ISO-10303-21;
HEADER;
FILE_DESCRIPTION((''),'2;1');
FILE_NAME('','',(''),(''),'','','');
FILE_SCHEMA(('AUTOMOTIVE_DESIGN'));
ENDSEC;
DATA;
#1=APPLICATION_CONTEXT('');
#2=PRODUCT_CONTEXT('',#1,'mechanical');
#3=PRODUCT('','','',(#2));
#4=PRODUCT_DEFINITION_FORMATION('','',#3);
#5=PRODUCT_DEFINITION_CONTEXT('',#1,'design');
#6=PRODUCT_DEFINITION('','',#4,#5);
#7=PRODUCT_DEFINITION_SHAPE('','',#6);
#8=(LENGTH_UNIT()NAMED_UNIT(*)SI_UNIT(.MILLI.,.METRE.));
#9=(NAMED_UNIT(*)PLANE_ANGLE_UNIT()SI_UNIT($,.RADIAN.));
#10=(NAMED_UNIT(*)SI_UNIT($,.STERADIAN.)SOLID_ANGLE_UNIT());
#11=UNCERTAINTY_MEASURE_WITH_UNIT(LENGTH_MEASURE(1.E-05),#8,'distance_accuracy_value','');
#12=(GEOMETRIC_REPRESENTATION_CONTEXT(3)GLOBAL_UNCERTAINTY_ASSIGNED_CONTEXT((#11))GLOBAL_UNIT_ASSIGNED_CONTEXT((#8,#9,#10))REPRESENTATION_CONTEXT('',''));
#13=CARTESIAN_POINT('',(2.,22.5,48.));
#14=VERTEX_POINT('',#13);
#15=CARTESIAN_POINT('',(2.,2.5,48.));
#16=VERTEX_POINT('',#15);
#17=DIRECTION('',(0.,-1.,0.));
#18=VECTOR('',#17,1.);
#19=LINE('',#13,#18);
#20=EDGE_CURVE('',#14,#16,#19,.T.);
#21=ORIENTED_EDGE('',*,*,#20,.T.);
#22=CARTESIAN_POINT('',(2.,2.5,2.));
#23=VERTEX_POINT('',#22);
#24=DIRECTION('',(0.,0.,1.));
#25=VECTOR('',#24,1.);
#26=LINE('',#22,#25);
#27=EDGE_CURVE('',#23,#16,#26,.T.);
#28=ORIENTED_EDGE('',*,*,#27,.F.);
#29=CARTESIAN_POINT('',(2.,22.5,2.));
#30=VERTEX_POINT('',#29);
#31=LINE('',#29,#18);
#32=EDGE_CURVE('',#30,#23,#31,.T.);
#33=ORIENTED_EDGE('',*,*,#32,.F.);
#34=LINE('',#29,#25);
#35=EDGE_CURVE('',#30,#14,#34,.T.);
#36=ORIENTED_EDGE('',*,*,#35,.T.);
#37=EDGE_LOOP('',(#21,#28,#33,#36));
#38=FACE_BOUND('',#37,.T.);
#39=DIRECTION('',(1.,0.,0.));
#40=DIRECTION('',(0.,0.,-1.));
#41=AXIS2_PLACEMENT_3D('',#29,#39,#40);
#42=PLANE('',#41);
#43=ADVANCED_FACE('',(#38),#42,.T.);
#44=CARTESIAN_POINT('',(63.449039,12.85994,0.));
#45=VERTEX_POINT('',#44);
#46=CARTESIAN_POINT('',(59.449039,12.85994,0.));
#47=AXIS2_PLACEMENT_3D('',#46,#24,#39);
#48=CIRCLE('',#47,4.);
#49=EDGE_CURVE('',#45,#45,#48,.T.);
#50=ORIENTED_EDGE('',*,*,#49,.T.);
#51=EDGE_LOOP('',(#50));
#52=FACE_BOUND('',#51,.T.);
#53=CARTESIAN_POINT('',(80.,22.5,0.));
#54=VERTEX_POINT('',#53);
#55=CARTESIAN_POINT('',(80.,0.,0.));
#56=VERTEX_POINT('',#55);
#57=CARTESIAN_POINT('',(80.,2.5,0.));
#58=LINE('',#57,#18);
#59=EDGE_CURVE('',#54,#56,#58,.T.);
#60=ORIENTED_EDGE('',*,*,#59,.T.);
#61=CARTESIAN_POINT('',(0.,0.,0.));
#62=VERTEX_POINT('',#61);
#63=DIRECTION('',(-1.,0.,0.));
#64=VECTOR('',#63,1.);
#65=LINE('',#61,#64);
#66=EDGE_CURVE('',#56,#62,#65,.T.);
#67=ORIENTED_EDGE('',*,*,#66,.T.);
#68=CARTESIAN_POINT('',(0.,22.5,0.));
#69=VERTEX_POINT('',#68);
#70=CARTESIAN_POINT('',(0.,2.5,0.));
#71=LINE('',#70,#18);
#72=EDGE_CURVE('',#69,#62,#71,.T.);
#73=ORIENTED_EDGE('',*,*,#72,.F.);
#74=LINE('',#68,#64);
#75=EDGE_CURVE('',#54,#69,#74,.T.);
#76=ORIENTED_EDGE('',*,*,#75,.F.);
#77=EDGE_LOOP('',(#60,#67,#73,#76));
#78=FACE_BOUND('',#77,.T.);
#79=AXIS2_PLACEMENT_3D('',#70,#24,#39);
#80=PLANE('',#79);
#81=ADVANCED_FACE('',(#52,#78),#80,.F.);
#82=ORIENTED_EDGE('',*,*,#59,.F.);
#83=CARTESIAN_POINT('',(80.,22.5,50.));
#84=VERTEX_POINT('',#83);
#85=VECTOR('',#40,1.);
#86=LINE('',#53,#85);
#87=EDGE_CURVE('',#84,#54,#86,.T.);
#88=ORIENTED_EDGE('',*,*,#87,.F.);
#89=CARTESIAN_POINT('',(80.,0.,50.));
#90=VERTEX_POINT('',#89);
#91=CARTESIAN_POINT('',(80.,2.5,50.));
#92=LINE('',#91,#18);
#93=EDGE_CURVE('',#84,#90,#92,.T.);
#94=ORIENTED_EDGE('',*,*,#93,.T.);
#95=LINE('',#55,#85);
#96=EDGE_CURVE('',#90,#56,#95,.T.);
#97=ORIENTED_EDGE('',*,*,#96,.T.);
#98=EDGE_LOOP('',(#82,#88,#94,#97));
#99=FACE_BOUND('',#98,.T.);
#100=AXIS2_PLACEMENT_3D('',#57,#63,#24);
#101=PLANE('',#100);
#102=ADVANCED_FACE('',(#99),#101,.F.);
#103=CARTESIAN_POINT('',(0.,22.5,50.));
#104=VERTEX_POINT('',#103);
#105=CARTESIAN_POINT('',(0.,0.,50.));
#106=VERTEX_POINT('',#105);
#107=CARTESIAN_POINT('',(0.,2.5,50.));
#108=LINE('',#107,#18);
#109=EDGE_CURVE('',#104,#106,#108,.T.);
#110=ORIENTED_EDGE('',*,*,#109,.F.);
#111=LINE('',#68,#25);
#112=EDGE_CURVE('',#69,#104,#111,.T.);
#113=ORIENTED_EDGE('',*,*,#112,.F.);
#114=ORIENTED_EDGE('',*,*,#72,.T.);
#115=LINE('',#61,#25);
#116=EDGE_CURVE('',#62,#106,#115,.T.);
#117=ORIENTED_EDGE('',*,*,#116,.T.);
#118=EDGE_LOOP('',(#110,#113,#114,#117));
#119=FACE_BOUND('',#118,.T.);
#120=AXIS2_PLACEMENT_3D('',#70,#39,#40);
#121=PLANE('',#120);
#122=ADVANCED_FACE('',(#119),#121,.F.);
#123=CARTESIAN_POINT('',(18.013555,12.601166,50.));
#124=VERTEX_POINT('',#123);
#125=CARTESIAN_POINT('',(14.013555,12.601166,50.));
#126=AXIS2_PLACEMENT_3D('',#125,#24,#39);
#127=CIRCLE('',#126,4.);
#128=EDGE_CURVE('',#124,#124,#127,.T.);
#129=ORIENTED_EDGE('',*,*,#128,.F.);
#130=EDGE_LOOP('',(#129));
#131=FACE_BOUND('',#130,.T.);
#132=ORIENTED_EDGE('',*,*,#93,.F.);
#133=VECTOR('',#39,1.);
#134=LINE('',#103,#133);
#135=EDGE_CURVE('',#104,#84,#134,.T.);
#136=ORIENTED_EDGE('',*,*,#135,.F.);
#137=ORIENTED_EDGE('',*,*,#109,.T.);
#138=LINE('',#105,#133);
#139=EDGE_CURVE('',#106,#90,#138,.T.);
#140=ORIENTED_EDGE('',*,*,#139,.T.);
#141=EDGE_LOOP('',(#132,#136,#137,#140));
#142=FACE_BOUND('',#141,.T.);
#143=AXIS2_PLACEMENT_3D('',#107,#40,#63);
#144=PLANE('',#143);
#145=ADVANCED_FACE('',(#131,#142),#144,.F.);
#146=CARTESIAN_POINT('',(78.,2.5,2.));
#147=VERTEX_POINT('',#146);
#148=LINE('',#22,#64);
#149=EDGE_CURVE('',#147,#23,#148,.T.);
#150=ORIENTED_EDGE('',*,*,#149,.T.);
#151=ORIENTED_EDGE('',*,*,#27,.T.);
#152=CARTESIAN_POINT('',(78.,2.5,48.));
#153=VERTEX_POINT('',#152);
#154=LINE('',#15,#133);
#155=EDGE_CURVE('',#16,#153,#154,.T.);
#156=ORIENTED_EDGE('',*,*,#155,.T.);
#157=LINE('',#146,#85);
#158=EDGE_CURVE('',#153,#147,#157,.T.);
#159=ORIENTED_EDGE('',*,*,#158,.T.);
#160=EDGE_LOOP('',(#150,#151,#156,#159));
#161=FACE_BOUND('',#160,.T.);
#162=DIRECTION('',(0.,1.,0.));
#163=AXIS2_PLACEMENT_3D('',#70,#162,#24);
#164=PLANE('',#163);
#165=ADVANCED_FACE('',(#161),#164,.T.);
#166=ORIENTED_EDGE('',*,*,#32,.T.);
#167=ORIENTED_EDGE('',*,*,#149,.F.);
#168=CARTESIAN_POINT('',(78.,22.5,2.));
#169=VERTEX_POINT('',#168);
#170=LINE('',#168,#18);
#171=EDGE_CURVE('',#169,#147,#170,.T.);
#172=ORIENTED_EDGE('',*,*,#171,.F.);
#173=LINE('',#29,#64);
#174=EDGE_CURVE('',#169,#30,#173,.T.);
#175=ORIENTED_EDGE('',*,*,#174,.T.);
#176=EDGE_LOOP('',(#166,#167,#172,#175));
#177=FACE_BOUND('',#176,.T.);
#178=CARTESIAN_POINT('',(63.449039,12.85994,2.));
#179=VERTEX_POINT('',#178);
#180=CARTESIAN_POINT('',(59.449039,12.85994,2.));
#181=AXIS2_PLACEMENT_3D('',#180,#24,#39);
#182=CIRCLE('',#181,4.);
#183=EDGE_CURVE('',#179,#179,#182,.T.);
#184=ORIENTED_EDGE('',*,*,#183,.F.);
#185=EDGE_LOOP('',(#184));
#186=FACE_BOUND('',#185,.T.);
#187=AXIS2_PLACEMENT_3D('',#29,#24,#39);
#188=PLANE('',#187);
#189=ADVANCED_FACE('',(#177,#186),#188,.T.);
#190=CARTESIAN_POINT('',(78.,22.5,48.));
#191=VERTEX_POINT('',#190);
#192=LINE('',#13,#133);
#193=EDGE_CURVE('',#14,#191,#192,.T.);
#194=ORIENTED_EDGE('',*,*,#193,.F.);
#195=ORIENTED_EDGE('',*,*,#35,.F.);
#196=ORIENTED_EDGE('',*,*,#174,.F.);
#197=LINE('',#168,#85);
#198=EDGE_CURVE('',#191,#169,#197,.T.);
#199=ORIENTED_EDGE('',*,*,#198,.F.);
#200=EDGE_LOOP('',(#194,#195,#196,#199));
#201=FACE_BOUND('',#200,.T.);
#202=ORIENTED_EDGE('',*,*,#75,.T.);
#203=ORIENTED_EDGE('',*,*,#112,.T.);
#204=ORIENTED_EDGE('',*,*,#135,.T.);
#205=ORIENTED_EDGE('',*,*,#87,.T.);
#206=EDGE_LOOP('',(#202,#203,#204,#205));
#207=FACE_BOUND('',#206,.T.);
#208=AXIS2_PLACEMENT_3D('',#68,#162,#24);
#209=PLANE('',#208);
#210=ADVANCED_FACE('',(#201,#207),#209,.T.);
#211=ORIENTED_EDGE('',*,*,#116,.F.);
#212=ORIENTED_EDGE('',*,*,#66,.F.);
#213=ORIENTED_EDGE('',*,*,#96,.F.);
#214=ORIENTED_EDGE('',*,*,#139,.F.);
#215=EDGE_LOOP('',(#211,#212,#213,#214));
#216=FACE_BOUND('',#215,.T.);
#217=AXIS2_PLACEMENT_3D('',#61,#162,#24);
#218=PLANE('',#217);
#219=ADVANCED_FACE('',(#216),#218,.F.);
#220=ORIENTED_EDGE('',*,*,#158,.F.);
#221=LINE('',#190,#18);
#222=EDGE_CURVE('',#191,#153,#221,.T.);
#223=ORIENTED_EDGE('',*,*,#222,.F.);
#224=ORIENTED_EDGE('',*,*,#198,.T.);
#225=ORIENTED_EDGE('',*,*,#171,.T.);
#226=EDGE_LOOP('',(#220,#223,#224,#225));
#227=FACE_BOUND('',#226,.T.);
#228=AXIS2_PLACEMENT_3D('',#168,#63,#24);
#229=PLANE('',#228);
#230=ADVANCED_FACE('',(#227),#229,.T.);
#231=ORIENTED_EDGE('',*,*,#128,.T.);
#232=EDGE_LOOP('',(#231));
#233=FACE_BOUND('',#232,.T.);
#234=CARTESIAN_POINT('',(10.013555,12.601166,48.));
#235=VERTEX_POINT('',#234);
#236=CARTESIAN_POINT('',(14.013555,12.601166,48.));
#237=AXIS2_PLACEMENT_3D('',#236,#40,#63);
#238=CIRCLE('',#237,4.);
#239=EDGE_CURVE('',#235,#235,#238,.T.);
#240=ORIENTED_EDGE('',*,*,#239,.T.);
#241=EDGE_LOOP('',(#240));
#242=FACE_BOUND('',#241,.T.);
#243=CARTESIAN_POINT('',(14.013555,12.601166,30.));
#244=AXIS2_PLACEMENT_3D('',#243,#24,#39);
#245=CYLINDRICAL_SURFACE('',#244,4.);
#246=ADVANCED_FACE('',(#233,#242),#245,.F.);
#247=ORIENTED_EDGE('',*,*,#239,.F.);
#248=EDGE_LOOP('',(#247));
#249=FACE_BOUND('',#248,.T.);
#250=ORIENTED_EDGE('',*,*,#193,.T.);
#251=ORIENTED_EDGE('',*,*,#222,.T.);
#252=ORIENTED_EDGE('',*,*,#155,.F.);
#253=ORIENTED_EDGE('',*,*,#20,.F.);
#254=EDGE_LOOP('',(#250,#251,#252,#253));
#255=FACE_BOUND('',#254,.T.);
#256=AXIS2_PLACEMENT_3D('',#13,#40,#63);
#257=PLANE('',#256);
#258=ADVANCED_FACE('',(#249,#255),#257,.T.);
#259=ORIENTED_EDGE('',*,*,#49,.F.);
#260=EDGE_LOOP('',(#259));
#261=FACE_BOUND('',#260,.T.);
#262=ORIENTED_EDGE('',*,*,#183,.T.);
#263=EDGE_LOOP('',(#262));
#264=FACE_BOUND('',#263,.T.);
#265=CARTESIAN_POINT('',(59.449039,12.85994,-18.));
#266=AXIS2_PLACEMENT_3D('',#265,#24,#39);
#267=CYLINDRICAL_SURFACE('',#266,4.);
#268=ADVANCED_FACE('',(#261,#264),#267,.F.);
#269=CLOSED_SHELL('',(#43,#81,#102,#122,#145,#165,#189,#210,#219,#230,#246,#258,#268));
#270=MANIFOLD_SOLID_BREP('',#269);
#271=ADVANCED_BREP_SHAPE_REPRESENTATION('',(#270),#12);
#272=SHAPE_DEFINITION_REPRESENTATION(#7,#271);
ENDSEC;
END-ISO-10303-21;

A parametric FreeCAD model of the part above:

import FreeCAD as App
import Part
import Sketcher
from FreeCAD import Vector
Q = App.Units.Quantity


def add_polygon(sketch, points):
    """Adds a closed chain of lines whose ends are joined by coincident constraints."""
    first, n = sketch.GeometryCount, len(points)
    for a, b in zip(points, points[1:] + points[:1]):
        sketch.addGeometry(Part.LineSegment(App.Vector(*a, 0), App.Vector(*b, 0)), False)
    for i in range(n):
        sketch.addConstraint(Sketcher.Constraint("Coincident", first + i, 2, first + (i + 1) % n, 1))

doc = App.newDocument("Part")
params = doc.addObject("Spreadsheet::Sheet", "Params")
for row, (alias, value) in enumerate([
    ("sketch1_width", "80 mm"),
    ("sketch1_height", "50 mm"),
    ("pad1_length", "2.5 mm"),
    ("sketch2_width", "80 mm"),
    ("sketch2_width2", "76 mm"),
    ("sketch2_height", "50 mm"),
    ("sketch2_height2", "46 mm"),
    ("pad2_length", "20 mm"),
    ("sketch3_diameter", "8 mm"),
    ("pocket1_length", "20 mm"),
    ("sketch4_diameter", "8 mm"),
    ("pocket2_length", "20 mm"),
], start=1):
    params.set(f"A{row}", alias)
    params.set(f"B{row}", "=" + value)
    params.setAlias(f"B{row}", alias)

body = doc.addObject("PartDesign::Body", "Body")

sketch1 = body.newObject("Sketcher::SketchObject", "Sketch")
sketch1.AttachmentSupport = (doc.getObject("XZ_Plane"), [""])
sketch1.MapMode = "FlatFace"
add_polygon(sketch1, [(0, 0), (0, 50), (80, 50), (80, 0)])
sketch1.addConstraint([
    Sketcher.Constraint("Vertical", 0),
    Sketcher.Constraint("Horizontal", 1),
    Sketcher.Constraint("Vertical", 2),
    Sketcher.Constraint("Horizontal", 3),
    Sketcher.Constraint("Coincident", 3, 2, -1, 1),
    Sketcher.Constraint("DistanceX", 1, 1, 1, 2, Q("80 mm")),
    Sketcher.Constraint("DistanceY", 0, 1, 0, 2, Q("50 mm")),
])
sketch1.setExpression("Constraints[9]", "Params.sketch1_width")
sketch1.setExpression("Constraints[10]", "Params.sketch1_height")
pad1 = body.newObject("PartDesign::Pad", "Pad")
pad1.Profile = sketch1
pad1.setExpression("Length", "Params.pad1_length")
pad1.Reversed = True

sketch2 = body.newObject("Sketcher::SketchObject", "Sketch001")
sketch2.AttachmentSupport = (doc.getObject("XZ_Plane"), [""])
sketch2.MapMode = "FlatFace"
sketch2.AttachmentOffset = App.Placement(Vector(0, 0, -2.5), App.Rotation())
add_polygon(sketch2, [(0, 0), (0, 50), (80, 50), (80, 0)])
add_polygon(sketch2, [(78, 48), (2, 48), (2, 2), (78, 2)])
sketch2.addConstraint([
    Sketcher.Constraint("Vertical", 0),
    Sketcher.Constraint("Horizontal", 1),
    Sketcher.Constraint("Vertical", 2),
    Sketcher.Constraint("Horizontal", 3),
    Sketcher.Constraint("Horizontal", 4),
    Sketcher.Constraint("Vertical", 5),
    Sketcher.Constraint("Horizontal", 6),
    Sketcher.Constraint("Vertical", 7),
    Sketcher.Constraint("Coincident", 3, 2, -1, 1),
    Sketcher.Constraint("DistanceX", 1, 1, 1, 2, Q("80 mm")),
    Sketcher.Constraint("DistanceX", 4, 2, 4, 1, Q("76 mm")),
    Sketcher.Constraint("DistanceY", 0, 1, 0, 2, Q("50 mm")),
    Sketcher.Constraint("DistanceY", 5, 2, 5, 1, Q("46 mm")),
    Sketcher.Constraint("DistanceX", -1, 1, 4, 2, Q("2 mm")),
    Sketcher.Constraint("DistanceY", -1, 1, 4, 2, Q("48 mm")),
])
sketch2.setExpression("Constraints[17]", "Params.sketch2_width")
sketch2.setExpression("Constraints[18]", "Params.sketch2_width2")
sketch2.setExpression("Constraints[19]", "Params.sketch2_height")
sketch2.setExpression("Constraints[20]", "Params.sketch2_height2")
pad2 = body.newObject("PartDesign::Pad", "Pad001")
pad2.Profile = sketch2
pad2.setExpression("Length", "Params.pad2_length")
pad2.Reversed = True

sketch3 = body.newObject("Sketcher::SketchObject", "Sketch002")
sketch3.AttachmentSupport = (doc.getObject("XY_Plane"), [""])
sketch3.MapMode = "FlatFace"
sketch3.AttachmentOffset = App.Placement(Vector(0, 0, 50), App.Rotation())
sketch3.addGeometry(Part.Circle(Vector(14, 12.6, 0), Vector(0, 0, 1), 4), False)
sketch3.addConstraint([
    Sketcher.Constraint("Diameter", 0, Q("8 mm")),
    Sketcher.Constraint("DistanceX", -1, 1, 0, 3, Q("14.013555 mm")),
    Sketcher.Constraint("DistanceY", -1, 1, 0, 3, Q("12.601166 mm")),
])
sketch3.setExpression("Constraints[0]", "Params.sketch3_diameter")
pocket1 = body.newObject("PartDesign::Pocket", "Pocket")
pocket1.Profile = sketch3
pocket1.setExpression("Length", "Params.pocket1_length")

sketch4 = body.newObject("Sketcher::SketchObject", "Sketch003")
sketch4.AttachmentSupport = (doc.getObject("XY_Plane"), [""])
sketch4.MapMode = "FlatFace"
sketch4.AttachmentOffset = App.Placement(Vector(0, 0, 2), App.Rotation())
sketch4.addGeometry(Part.Circle(Vector(59.4, 12.9, 0), Vector(0, 0, 1), 4), False)
sketch4.addConstraint([
    Sketcher.Constraint("Diameter", 0, Q("8 mm")),
    Sketcher.Constraint("DistanceX", -1, 1, 0, 3, Q("59.449039 mm")),
    Sketcher.Constraint("DistanceY", -1, 1, 0, 3, Q("12.85994 mm")),
])
sketch4.setExpression("Constraints[0]", "Params.sketch4_diameter")
pocket2 = body.newObject("PartDesign::Pocket", "Pocket001")
pocket2.Profile = sketch4
pocket2.setExpression("Length", "Params.pocket2_length")

doc.recompute()
